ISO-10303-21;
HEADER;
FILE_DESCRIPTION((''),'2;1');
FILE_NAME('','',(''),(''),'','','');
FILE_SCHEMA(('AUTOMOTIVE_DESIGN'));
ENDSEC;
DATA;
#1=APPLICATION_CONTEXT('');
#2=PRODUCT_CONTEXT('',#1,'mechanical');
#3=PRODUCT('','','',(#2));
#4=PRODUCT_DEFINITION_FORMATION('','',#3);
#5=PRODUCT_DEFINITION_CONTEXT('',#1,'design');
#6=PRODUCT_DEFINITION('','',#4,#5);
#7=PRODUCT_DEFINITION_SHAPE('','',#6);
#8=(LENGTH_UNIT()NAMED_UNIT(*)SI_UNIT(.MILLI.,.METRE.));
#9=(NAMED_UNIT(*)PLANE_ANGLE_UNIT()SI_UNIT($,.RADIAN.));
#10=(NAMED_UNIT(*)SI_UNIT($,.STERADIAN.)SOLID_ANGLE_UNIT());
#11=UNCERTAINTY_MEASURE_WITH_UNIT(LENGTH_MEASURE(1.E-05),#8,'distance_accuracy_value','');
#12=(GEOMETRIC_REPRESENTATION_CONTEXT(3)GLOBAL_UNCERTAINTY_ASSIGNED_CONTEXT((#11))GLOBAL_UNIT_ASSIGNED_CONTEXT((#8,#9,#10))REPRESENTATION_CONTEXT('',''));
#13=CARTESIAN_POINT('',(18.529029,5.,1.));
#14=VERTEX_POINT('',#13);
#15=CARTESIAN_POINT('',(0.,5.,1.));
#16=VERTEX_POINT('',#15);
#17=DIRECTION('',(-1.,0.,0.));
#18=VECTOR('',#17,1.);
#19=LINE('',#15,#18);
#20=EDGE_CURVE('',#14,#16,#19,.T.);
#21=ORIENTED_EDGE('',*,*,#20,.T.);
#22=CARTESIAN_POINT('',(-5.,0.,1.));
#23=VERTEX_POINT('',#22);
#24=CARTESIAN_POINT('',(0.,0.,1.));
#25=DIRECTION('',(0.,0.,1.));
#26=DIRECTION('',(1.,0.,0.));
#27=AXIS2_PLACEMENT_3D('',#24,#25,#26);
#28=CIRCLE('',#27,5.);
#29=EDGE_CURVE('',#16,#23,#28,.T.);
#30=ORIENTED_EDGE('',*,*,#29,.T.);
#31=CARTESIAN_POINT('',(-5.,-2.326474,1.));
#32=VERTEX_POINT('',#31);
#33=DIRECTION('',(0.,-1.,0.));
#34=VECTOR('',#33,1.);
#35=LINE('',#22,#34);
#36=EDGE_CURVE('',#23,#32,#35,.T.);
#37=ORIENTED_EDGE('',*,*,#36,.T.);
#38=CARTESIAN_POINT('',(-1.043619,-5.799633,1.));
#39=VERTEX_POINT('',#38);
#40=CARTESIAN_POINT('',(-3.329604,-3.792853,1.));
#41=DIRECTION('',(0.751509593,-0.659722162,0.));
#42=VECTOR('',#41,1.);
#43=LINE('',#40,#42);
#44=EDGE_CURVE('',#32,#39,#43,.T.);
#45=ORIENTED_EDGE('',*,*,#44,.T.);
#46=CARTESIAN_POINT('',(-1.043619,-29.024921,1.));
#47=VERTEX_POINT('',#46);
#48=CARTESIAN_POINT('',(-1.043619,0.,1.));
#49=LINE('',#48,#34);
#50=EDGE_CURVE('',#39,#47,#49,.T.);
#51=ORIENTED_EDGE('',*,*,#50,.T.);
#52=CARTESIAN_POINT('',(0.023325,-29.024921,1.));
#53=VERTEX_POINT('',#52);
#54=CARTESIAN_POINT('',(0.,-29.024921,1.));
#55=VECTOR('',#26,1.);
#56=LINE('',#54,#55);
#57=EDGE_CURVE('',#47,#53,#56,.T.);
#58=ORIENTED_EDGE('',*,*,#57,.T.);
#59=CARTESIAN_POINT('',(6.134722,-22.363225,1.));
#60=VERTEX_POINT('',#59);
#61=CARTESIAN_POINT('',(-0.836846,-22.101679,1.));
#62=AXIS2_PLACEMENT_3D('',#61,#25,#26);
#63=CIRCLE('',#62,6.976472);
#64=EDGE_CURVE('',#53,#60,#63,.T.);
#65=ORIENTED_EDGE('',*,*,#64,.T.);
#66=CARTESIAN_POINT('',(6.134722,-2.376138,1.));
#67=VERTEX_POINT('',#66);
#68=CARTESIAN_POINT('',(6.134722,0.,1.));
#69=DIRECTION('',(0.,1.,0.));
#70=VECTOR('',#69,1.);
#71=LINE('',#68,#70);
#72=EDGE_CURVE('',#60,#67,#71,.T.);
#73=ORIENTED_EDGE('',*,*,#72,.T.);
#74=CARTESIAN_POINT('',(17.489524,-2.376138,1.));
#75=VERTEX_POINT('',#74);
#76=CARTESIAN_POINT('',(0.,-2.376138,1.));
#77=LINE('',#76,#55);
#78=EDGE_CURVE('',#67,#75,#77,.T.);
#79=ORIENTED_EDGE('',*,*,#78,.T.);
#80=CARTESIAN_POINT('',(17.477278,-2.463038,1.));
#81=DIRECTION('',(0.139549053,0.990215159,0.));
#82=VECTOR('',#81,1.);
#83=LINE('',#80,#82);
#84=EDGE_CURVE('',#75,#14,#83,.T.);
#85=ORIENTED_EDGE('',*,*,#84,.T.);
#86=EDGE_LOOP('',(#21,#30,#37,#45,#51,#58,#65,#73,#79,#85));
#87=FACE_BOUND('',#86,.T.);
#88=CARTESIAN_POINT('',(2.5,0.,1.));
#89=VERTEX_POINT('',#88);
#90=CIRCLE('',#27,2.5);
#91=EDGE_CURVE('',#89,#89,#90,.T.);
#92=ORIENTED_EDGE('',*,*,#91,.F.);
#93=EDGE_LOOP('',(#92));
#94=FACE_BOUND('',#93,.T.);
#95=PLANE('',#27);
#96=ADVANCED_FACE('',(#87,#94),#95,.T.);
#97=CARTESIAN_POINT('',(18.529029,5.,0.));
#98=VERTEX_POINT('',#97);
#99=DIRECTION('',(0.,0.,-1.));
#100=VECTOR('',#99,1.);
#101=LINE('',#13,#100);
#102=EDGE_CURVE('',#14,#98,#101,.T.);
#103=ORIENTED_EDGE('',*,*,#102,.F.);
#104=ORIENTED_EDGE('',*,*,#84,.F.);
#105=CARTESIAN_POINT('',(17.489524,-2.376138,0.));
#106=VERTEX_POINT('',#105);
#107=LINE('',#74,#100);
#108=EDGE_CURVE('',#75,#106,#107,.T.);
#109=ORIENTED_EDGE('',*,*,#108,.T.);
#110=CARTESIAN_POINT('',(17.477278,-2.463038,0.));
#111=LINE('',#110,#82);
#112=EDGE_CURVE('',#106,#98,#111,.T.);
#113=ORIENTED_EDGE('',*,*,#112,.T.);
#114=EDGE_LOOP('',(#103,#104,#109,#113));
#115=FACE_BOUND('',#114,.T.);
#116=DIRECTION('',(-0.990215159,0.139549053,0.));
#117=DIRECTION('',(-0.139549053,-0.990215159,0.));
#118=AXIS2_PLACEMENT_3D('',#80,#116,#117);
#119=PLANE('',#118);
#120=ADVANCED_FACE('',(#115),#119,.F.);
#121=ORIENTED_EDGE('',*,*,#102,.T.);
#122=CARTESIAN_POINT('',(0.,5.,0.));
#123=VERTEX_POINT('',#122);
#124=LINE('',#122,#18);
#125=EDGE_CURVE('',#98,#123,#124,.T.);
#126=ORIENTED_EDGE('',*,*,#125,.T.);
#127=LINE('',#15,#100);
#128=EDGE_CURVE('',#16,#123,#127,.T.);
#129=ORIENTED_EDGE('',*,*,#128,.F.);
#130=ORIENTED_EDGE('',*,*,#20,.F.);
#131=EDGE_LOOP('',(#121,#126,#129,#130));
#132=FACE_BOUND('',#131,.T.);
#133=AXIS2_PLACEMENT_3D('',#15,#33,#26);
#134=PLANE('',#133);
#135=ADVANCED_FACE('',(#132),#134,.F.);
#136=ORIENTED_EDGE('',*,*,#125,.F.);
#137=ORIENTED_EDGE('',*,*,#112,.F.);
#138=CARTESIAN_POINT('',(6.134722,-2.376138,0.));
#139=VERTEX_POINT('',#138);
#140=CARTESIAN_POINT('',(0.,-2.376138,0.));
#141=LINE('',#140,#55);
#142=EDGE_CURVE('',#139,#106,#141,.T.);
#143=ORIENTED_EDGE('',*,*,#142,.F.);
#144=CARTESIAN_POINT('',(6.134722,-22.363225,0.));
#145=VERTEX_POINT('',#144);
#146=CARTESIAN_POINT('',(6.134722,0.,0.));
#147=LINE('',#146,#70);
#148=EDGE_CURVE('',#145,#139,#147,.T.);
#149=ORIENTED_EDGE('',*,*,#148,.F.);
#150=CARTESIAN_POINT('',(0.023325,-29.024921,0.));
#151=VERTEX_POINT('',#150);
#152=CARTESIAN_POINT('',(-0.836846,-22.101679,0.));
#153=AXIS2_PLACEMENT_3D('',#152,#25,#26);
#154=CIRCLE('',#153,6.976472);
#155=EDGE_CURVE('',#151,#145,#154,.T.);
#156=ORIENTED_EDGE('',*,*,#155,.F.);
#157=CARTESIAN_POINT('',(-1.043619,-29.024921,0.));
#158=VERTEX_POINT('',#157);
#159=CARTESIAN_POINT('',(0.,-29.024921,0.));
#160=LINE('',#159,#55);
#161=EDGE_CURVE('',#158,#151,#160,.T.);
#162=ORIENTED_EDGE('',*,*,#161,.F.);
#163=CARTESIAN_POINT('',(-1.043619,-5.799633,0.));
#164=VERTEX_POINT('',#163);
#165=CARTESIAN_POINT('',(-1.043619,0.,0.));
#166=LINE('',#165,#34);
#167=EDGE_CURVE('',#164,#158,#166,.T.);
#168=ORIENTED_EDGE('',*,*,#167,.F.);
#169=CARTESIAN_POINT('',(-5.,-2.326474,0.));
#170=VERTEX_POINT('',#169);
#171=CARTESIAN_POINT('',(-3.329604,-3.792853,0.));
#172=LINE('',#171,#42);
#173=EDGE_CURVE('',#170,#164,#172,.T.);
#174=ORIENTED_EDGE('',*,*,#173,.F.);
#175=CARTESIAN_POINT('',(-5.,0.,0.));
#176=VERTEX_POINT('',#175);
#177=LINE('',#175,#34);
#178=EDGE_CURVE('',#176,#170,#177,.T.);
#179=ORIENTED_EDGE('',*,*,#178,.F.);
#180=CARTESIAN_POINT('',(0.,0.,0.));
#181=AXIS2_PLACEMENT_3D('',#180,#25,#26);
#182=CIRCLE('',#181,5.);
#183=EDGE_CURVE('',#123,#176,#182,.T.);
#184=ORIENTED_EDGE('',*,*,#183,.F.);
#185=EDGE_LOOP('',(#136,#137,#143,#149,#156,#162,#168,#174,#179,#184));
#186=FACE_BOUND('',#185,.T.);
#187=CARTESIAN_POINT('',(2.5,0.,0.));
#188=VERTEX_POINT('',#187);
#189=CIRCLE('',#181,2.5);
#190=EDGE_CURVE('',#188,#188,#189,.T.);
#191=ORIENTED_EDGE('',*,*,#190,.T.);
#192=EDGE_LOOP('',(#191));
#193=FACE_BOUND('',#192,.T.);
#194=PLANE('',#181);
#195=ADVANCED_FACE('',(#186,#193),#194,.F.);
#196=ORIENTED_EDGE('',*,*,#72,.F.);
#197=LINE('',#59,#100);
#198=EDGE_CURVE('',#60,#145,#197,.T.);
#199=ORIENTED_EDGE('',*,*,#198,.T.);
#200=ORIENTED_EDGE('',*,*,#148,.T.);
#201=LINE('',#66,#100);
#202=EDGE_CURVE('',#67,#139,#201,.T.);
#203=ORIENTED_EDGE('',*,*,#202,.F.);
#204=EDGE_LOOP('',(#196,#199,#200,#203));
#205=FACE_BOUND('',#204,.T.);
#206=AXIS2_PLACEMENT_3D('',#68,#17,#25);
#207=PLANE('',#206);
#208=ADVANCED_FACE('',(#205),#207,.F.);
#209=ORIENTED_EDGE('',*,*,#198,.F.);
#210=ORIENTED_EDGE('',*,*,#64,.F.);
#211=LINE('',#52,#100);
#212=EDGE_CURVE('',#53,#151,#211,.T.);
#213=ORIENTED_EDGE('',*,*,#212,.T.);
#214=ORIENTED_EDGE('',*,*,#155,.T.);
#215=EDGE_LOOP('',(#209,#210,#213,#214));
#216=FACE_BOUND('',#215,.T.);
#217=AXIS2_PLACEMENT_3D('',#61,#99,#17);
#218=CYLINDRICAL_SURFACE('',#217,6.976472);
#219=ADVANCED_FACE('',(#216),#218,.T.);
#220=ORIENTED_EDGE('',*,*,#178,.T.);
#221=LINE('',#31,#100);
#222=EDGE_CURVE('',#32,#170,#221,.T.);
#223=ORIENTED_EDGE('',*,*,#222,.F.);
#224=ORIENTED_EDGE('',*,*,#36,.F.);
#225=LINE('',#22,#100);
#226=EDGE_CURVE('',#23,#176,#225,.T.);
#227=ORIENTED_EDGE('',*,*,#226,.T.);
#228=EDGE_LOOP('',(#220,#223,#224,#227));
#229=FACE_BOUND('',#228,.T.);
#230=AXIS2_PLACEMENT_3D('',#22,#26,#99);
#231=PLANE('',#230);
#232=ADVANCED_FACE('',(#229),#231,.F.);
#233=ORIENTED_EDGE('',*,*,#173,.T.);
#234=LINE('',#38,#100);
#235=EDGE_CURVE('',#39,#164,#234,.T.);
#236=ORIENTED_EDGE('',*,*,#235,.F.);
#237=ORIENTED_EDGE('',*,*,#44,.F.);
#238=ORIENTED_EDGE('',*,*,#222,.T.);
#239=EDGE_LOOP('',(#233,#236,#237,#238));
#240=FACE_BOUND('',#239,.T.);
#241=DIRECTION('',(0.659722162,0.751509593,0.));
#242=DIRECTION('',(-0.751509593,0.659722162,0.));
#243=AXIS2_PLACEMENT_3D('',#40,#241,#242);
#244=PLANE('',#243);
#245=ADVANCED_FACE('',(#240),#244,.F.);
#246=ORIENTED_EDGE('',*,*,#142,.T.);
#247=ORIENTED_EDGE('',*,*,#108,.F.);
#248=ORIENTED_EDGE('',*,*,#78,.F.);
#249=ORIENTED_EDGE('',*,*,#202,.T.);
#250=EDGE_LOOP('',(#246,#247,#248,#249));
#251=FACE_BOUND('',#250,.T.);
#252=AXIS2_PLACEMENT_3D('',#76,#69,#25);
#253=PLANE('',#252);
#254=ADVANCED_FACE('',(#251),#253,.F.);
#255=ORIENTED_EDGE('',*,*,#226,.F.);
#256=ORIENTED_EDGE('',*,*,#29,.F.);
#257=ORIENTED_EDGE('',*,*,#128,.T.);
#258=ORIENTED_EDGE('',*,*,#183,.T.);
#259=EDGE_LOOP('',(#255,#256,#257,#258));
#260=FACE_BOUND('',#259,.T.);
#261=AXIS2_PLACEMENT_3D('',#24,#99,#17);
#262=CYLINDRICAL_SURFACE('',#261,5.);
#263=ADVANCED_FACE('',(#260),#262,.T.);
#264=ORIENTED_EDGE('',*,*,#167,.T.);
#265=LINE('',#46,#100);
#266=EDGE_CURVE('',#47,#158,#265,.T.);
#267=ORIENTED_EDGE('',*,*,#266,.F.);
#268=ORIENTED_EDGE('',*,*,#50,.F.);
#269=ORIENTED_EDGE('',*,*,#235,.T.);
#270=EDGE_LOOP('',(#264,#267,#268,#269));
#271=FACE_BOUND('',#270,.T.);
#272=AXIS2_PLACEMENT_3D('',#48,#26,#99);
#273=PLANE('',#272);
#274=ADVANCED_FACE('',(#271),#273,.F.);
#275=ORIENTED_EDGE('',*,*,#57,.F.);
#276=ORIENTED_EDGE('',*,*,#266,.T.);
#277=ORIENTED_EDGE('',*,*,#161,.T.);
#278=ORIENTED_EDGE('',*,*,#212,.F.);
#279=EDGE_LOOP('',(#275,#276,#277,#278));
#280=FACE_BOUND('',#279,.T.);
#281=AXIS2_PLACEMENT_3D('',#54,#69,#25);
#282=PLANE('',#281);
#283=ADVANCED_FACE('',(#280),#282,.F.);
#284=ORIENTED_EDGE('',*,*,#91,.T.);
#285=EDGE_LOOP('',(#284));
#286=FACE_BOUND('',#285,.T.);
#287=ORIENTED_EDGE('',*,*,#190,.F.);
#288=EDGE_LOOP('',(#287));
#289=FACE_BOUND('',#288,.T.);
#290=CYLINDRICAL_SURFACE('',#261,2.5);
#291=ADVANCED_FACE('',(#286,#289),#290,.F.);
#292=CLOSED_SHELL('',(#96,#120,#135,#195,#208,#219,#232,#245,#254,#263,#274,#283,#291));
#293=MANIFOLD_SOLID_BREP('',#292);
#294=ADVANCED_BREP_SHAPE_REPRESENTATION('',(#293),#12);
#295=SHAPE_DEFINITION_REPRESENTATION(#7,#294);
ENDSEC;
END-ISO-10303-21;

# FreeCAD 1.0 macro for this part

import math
import FreeCAD as App
import Part
import Sketcher
Q = App.Units.Quantity

doc = App.newDocument("Part")
body = doc.addObject("PartDesign::Body", "Body")

sketch1 = doc.addObject("Sketcher::SketchObject", "Sketch")
body.addObject(sketch1)
sketch1.AttachmentSupport = (doc.XY_Plane, [""])
sketch1.MapMode = "FlatFace"
sketch1.addGeometry([
    Part.LineSegment(App.Vector(18.5, 5, 0), App.Vector(0, 5, 0)),
    Part.ArcOfCircle(Part.Circle(App.Vector(0, 0, 0), App.Vector(0, 0, 1), 5), math.radians(90), math.radians(180)),
    Part.LineSegment(App.Vector(-5, 0, 0), App.Vector(-5, -2.3, 0)),
    Part.LineSegment(App.Vector(-5, -2.3, 0), App.Vector(-1, -5.8, 0)),
    Part.LineSegment(App.Vector(-1, -5.8, 0), App.Vector(-1, -29, 0)),
    Part.LineSegment(App.Vector(-1, -29, 0), App.Vector(0, -29, 0)),
    Part.ArcOfCircle(Part.Circle(App.Vector(-0.8, -22.1, 0), App.Vector(0, 0, 1), 7), math.radians(-83), math.radians(-2)),
    Part.LineSegment(App.Vector(6.1, -22.4, 0), App.Vector(6.1, -2.4, 0)),
    Part.LineSegment(App.Vector(6.1, -2.4, 0), App.Vector(17.5, -2.4, 0)),
    Part.LineSegment(App.Vector(17.5, -2.4, 0), App.Vector(18.5, 5, 0)),
    Part.Circle(App.Vector(0, 0, 0), App.Vector(0, 0, 1), 2.5),
], False)
sketch1.addConstraint([
    Sketcher.Constraint("Tangent", 0, 2, 1, 1),
    Sketcher.Constraint("Tangent", 1, 2, 2, 1),
    Sketcher.Constraint("Coincident", 2, 2, 3, 1),
    Sketcher.Constraint("Coincident", 3, 2, 4, 1),
    Sketcher.Constraint("Coincident", 4, 2, 5, 1),
    Sketcher.Constraint("Coincident", 5, 2, 6, 1),
    Sketcher.Constraint("Coincident", 6, 2, 7, 1),
    Sketcher.Constraint("Coincident", 7, 2, 8, 1),
    Sketcher.Constraint("Coincident", 8, 2, 9, 1),
    Sketcher.Constraint("Coincident", 9, 2, 0, 1),
    Sketcher.Constraint("Horizontal", 0),
    Sketcher.Constraint("Vertical", 2),
    Sketcher.Constraint("Vertical", 4),
    Sketcher.Constraint("Horizontal", 5),
    Sketcher.Constraint("Vertical", 7),
    Sketcher.Constraint("Horizontal", 8),
    Sketcher.Constraint("Coincident", 1, 3, -1, 1),
    Sketcher.Constraint("Coincident", 10, 3, -1, 1),
    Sketcher.Constraint("Diameter", 10, Q("5 mm")),
    Sketcher.Constraint("Radius", 1, Q("5 mm")),
    Sketcher.Constraint("Radius", 6, Q("6.976472 mm")),
    Sketcher.Constraint("DistanceX", 0, 2, 0, 1, Q("18.529029 mm")),
    Sketcher.Constraint("DistanceX", 5, 1, 5, 2, Q("1.066944 mm")),
    Sketcher.Constraint("DistanceX", 8, 1, 8, 2, Q("11.354802 mm")),
    Sketcher.Constraint("DistanceY", 2, 2, 2, 1, Q("2.326474 mm")),
    Sketcher.Constraint("DistanceY", 4, 2, 4, 1, Q("23.225288 mm")),
    Sketcher.Constraint("DistanceY", 7, 1, 7, 2, Q("19.987087 mm")),
    Sketcher.Constraint("DistanceY", 6, 3, -1, 1, Q("22.101679 mm")),
    Sketcher.Constraint("DistanceX", 3, 2, -1, 1, Q("1.043619 mm")),
    Sketcher.Constraint("DistanceY", 4, 2, -1, 1, Q("29.024921 mm")),
    Sketcher.Constraint("DistanceY", 7, 2, -1, 1, Q("2.376138 mm")),
])
pad1 = doc.addObject("PartDesign::Pad", "Pad")
body.addObject(pad1)
pad1.Profile = sketch1
pad1.Length = 1

doc.recompute()
